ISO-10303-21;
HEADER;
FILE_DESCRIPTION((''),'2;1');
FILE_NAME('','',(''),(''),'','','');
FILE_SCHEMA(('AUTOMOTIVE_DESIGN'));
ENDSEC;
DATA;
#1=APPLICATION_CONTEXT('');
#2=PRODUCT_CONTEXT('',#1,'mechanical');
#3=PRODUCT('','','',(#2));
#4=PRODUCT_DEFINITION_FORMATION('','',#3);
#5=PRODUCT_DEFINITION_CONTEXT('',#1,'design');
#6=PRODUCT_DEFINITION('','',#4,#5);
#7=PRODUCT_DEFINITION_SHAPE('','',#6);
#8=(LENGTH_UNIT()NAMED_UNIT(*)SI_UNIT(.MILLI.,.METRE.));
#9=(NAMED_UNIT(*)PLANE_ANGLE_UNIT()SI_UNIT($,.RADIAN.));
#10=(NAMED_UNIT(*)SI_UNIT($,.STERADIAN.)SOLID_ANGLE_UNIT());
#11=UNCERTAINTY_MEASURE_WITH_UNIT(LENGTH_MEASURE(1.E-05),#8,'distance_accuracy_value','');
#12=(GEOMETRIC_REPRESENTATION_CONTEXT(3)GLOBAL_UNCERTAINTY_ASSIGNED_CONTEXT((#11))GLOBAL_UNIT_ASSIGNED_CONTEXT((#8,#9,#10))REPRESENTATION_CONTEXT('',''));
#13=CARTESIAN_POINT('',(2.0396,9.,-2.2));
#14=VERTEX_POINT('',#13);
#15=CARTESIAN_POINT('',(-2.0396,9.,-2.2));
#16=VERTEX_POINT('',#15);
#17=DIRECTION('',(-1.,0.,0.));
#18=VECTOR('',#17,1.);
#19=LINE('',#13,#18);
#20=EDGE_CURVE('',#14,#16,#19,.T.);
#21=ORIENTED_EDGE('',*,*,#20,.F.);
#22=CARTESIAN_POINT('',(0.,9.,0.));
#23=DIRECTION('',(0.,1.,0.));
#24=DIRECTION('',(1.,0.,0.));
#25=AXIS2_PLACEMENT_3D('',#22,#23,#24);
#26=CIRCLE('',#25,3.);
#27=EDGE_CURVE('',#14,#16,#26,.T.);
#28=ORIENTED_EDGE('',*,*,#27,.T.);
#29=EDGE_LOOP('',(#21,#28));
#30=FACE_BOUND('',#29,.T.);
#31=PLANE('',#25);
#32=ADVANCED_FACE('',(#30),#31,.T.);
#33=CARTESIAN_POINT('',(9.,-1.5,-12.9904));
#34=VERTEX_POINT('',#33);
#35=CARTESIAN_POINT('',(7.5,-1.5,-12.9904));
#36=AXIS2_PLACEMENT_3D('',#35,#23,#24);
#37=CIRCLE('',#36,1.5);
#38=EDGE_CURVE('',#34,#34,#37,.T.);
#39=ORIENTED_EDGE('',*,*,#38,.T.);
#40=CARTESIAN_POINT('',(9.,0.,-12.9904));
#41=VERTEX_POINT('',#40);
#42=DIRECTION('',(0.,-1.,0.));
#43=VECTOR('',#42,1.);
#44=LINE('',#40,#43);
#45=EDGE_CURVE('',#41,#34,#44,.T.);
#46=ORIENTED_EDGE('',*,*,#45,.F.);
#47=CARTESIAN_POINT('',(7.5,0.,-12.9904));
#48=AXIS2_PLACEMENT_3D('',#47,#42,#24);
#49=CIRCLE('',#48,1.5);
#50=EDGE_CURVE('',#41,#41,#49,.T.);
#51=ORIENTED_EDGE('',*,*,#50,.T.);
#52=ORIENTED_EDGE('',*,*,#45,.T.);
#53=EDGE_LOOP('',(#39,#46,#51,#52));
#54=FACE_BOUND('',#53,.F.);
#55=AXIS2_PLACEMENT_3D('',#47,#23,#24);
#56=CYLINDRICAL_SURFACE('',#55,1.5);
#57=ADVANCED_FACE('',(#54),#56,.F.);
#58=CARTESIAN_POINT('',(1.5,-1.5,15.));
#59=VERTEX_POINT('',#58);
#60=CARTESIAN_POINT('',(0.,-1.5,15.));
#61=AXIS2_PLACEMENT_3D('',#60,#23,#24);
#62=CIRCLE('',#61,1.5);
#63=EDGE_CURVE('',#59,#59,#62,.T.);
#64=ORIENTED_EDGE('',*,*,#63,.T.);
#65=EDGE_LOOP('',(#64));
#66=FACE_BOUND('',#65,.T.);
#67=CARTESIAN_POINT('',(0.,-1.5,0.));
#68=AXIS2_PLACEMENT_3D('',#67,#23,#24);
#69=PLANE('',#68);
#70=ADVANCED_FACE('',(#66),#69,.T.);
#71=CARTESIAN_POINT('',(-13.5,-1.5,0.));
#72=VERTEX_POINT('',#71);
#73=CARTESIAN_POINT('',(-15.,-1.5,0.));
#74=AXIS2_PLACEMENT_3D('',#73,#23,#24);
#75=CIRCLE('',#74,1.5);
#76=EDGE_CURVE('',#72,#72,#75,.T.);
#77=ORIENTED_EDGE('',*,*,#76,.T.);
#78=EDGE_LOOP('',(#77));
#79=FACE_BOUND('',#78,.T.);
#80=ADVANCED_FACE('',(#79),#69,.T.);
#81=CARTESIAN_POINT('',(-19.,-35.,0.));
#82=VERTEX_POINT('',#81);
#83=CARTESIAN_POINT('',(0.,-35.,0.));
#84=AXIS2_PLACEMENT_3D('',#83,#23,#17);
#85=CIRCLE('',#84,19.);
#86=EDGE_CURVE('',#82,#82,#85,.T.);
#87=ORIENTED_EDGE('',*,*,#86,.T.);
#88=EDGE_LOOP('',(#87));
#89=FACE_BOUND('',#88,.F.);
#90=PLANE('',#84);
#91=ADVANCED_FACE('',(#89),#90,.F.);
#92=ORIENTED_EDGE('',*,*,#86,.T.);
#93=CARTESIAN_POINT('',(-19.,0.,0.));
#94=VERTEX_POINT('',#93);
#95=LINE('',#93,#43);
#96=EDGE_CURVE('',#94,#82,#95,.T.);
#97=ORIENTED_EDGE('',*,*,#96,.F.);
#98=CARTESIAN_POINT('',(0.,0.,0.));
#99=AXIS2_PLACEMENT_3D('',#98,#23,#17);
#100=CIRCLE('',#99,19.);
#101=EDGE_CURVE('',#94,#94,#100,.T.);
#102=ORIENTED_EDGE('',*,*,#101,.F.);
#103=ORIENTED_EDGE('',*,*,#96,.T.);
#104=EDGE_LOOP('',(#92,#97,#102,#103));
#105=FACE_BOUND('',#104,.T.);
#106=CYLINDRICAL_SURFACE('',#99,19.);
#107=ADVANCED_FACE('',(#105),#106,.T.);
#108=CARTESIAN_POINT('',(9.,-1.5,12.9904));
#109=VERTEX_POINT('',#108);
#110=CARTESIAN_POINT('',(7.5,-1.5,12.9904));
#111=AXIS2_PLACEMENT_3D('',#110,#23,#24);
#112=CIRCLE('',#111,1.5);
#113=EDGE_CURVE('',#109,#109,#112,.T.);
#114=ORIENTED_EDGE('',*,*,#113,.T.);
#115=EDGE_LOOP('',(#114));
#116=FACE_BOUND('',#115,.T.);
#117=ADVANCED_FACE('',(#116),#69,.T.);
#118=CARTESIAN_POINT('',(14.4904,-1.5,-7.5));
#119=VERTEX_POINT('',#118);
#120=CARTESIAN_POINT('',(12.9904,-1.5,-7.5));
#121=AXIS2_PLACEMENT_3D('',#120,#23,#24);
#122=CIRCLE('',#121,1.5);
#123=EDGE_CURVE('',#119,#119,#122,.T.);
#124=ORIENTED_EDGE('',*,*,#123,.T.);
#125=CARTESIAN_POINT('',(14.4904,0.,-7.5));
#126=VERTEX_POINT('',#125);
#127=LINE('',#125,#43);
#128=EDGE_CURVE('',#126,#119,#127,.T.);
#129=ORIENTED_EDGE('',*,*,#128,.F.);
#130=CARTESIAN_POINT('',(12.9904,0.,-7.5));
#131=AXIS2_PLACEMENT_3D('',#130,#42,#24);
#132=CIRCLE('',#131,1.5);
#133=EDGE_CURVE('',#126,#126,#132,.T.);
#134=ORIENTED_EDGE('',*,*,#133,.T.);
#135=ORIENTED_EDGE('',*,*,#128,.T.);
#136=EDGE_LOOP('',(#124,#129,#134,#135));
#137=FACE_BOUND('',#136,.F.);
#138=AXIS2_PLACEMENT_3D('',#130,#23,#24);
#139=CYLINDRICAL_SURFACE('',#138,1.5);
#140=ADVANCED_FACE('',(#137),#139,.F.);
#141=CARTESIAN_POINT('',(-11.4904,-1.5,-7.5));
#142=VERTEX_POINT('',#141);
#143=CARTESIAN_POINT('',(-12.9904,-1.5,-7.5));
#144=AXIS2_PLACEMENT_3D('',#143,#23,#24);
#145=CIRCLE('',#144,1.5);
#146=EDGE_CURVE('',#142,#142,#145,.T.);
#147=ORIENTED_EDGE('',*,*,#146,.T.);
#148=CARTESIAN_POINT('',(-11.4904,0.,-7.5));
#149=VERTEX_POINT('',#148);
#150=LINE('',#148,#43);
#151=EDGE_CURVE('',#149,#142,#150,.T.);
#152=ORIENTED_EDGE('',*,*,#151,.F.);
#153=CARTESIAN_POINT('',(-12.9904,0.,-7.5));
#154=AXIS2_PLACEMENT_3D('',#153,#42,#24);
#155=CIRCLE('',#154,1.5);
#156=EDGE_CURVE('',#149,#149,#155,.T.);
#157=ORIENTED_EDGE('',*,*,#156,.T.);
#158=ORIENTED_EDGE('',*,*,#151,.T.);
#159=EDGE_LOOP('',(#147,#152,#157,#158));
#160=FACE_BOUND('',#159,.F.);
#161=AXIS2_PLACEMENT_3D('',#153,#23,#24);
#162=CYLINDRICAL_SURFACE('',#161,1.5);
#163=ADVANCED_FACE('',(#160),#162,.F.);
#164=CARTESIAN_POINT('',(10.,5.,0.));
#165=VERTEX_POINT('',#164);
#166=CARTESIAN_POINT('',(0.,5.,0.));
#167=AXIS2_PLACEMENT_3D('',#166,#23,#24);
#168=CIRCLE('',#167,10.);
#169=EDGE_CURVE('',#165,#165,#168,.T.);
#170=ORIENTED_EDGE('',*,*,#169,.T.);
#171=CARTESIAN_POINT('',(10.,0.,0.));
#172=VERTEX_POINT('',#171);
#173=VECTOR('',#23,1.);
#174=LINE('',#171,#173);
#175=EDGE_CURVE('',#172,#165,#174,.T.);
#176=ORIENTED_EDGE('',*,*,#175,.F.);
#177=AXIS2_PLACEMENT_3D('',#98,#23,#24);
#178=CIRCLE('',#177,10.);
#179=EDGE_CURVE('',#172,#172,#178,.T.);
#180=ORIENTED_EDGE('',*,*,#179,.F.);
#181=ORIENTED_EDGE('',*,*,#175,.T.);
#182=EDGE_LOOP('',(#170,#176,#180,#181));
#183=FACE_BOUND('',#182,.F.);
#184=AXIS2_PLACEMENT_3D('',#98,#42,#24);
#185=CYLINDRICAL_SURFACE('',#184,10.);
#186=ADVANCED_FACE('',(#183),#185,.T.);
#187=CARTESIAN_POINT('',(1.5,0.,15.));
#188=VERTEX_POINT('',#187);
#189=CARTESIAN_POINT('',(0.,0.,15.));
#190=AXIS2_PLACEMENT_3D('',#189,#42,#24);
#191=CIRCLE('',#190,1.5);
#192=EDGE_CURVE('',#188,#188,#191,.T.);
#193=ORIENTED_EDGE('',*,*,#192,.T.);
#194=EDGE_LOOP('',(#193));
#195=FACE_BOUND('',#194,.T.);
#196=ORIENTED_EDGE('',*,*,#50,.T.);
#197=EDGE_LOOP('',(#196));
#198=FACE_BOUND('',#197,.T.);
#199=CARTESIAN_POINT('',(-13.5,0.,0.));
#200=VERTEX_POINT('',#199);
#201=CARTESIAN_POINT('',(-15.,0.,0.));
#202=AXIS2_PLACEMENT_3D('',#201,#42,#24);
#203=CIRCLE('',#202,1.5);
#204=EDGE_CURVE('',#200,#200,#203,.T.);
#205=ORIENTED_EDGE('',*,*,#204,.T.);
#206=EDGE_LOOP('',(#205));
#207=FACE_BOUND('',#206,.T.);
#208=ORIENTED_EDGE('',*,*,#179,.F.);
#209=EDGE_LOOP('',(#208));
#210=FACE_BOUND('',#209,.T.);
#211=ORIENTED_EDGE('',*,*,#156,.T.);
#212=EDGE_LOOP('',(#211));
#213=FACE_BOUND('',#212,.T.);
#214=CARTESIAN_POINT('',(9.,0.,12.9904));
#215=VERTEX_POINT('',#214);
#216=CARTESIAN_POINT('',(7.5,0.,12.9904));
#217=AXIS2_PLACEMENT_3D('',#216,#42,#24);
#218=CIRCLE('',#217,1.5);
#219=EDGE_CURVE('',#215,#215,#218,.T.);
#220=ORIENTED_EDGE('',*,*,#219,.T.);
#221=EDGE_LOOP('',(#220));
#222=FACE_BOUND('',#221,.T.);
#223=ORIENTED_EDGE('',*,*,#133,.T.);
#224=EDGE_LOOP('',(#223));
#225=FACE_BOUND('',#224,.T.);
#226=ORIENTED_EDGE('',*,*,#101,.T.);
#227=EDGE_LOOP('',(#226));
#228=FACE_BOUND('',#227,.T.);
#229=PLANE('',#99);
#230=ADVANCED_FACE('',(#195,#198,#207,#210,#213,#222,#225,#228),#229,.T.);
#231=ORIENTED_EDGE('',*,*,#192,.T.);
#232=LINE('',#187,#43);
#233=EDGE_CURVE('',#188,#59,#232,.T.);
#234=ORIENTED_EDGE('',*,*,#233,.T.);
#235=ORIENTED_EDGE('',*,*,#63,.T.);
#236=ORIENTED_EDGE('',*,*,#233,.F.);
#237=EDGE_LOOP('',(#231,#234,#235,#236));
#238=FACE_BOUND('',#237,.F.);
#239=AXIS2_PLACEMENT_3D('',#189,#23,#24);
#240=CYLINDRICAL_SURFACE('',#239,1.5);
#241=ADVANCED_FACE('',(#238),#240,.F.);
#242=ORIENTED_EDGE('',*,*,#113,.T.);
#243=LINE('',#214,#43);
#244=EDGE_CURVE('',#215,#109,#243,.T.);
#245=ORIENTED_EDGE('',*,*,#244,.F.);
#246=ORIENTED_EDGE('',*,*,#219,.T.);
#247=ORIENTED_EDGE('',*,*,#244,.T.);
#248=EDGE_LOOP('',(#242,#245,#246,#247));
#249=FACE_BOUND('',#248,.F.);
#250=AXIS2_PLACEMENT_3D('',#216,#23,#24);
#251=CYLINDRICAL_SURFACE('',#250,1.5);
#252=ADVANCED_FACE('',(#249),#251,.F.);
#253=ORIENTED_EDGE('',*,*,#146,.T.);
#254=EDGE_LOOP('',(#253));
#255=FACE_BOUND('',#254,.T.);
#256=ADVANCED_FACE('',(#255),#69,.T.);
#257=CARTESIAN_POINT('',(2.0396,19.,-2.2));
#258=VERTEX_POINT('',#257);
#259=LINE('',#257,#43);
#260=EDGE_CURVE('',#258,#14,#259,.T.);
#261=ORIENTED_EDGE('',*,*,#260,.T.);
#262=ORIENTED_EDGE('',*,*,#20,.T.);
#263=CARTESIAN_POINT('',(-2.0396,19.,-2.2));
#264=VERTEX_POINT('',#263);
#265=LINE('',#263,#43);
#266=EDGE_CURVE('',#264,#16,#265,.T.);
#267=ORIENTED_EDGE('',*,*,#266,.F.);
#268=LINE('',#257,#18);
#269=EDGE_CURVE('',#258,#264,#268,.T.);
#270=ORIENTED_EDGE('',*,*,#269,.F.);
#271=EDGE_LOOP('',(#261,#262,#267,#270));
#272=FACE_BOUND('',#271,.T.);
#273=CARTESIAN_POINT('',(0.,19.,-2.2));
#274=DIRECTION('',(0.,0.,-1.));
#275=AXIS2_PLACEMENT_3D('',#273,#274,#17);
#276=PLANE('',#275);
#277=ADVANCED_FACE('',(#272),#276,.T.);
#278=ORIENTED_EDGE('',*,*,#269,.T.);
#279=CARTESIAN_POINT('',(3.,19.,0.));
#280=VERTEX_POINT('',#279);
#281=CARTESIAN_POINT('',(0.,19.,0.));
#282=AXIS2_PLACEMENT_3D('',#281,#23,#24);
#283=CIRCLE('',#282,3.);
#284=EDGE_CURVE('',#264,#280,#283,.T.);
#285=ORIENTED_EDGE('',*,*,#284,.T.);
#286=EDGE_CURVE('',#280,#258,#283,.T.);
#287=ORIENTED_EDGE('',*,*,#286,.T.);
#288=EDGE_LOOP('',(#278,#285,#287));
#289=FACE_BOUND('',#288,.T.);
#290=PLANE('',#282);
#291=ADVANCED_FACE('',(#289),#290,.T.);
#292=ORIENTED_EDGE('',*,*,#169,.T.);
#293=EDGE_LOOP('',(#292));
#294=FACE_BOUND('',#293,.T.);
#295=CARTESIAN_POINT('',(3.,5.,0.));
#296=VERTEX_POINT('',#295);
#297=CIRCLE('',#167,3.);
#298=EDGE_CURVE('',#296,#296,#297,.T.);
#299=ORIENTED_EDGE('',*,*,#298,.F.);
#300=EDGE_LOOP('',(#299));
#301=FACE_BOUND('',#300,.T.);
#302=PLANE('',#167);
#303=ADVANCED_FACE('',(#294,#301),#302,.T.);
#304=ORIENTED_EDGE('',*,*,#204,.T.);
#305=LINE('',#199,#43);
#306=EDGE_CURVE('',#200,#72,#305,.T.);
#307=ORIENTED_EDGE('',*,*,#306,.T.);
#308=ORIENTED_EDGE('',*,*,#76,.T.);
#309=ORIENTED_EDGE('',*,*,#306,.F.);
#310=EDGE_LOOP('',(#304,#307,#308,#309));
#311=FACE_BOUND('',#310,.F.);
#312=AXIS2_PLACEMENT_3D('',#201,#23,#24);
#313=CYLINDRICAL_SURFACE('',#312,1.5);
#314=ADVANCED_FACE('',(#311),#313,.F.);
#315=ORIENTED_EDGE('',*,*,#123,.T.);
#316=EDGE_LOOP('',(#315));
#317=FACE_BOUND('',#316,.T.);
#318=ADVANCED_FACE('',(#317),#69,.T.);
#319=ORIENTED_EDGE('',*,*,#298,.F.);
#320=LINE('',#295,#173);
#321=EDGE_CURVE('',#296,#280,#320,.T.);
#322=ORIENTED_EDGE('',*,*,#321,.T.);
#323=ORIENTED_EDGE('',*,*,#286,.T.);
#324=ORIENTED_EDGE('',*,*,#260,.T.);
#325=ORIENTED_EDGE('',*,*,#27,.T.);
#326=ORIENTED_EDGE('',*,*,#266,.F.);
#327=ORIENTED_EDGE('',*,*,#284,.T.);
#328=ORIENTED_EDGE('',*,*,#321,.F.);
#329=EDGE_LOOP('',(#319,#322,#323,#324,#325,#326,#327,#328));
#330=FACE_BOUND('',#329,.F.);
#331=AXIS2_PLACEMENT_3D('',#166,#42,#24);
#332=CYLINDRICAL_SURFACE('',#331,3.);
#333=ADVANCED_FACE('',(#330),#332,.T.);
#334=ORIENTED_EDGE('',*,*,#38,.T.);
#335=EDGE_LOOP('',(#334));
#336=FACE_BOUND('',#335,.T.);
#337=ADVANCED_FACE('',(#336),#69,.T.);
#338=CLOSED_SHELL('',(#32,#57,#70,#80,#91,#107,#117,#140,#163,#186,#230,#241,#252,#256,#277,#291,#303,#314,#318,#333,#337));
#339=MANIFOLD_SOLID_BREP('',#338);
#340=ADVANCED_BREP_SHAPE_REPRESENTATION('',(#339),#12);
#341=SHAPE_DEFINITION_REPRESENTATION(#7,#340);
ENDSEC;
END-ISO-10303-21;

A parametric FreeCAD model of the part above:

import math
import FreeCAD as App
import Part
import Sketcher

doc = App.newDocument("Part")
params = doc.addObject("Spreadsheet::Sheet", "Params")
for row, (alias, value) in enumerate([
    ("sketch1_diameter", "38 mm"),
    ("pad1_length", "35 mm"),
    ("sketch2_diameter", "3 mm"),
    ("pocket1_length", "1.5 mm"),
    ("sketch3_diameter", "20 mm"),
    ("pad2_length", "5 mm"),
    ("sketch4_diameter", "6 mm"),
    ("pad3_length", "14 mm"),
    ("sketch5_radius", "3 mm"),
    ("pocket2_length", "10 mm"),
], start=1):
    params.set(f"A{row}", alias)
    params.set(f"B{row}", "=" + value)
    params.setAlias(f"B{row}", alias)

body = doc.addObject("PartDesign::Body", "Body")

# Sketch on XZ plane
sketch1 = body.newObject("Sketcher::SketchObject", "Sketch")
sketch1.AttachmentSupport = (doc.getObject("XZ_Plane"), [""])
sketch1.MapMode = "FlatFace"
sketch1.addGeometry(Part.Circle(App.Vector(0, 0, 0), App.Vector(0, 0, 1), 19), False)
sketch1.addConstraint([
    Sketcher.Constraint("Coincident", 0, 3, -1, 1),
    Sketcher.Constraint("Diameter", 0, 38.0),
])
sketch1.setExpression("Constraints[1]", "Params.sketch1_diameter")
pad1 = body.newObject("PartDesign::Pad", "Pad")
pad1.Profile = sketch1
pad1.setExpression("Length", "Params.pad1_length")

# Sketch on XZ plane
sketch2 = body.newObject("Sketcher::SketchObject", "Sketch001")
sketch2.AttachmentSupport = (doc.getObject("XZ_Plane"), [""])
sketch2.MapMode = "FlatFace"
sketch2.addGeometry([
    Part.Circle(App.Vector(-13, -7.5, 0), App.Vector(0, 0, 1), 1.5),  # 0
    Part.Circle(App.Vector(-15, 0, 0), App.Vector(0, 0, 1), 1.5),  # 1
    Part.Circle(App.Vector(7.5, -13, 0), App.Vector(0, 0, 1), 1.5),  # 2
    Part.Circle(App.Vector(0, 15, 0), App.Vector(0, 0, 1), 1.5),  # 3
    Part.Circle(App.Vector(13, -7.5, 0), App.Vector(0, 0, 1), 1.5),  # 4
    Part.Circle(App.Vector(7.5, 13, 0), App.Vector(0, 0, 1), 1.5),  # 5
], False)
sketch2.addConstraint([
    Sketcher.Constraint("Equal", 0, 1),
    Sketcher.Constraint("Equal", 1, 2),
    Sketcher.Constraint("Equal", 2, 3),
    Sketcher.Constraint("Equal", 3, 4),
    Sketcher.Constraint("Equal", 4, 5),
    Sketcher.Constraint("Symmetric", 0, 3, 4, 3, -2),
    Sketcher.Constraint("Symmetric", 2, 3, 5, 3, -1),
    Sketcher.Constraint("PointOnObject", 1, 3, -1),
    Sketcher.Constraint("PointOnObject", 3, 3, -2),
    Sketcher.Constraint("Diameter", 0, 3.0),
    Sketcher.Constraint("DistanceX", 1, 3, -1, 1, 15.0),
    Sketcher.Constraint("DistanceY", -1, 1, 3, 3, 15.0),
    Sketcher.Constraint("DistanceY", 0, 3, -1, 1, 7.5),
    Sketcher.Constraint("DistanceX", -1, 1, 2, 3, 7.5),
    Sketcher.Constraint("DistanceX", 0, 3, -1, 1, 12.9904),
    Sketcher.Constraint("DistanceY", 2, 3, -1, 1, 12.9904),
])
sketch2.setExpression("Constraints[9]", "Params.sketch2_diameter")
pocket1 = body.newObject("PartDesign::Pocket", "Pocket")
pocket1.Profile = sketch2
pocket1.setExpression("Length", "Params.pocket1_length")
pocket1.Reversed = True

# Sketch on XZ plane
sketch3 = body.newObject("Sketcher::SketchObject", "Sketch002")
sketch3.AttachmentSupport = (doc.getObject("XZ_Plane"), [""])
sketch3.MapMode = "FlatFace"
sketch3.addGeometry(Part.Circle(App.Vector(0, 0, 0), App.Vector(0, 0, 1), 10), False)
sketch3.addConstraint([
    Sketcher.Constraint("Coincident", 0, 3, -1, 1),
    Sketcher.Constraint("Diameter", 0, 20.0),
])
sketch3.setExpression("Constraints[1]", "Params.sketch3_diameter")
pad2 = body.newObject("PartDesign::Pad", "Pad001")
pad2.Profile = sketch3
pad2.setExpression("Length", "Params.pad2_length")
pad2.Reversed = True

# Sketch on XZ plane
sketch4 = body.newObject("Sketcher::SketchObject", "Sketch003")
sketch4.AttachmentSupport = (doc.getObject("XZ_Plane"), [""])
sketch4.MapMode = "FlatFace"
sketch4.AttachmentOffset = App.Placement(App.Vector(0, 0, -5), App.Rotation())
sketch4.addGeometry(Part.Circle(App.Vector(0, 0, 0), App.Vector(0, 0, 1), 3), False)
sketch4.addConstraint([
    Sketcher.Constraint("Coincident", 0, 3, -1, 1),
    Sketcher.Constraint("Diameter", 0, 6.0),
])
sketch4.setExpression("Constraints[1]", "Params.sketch4_diameter")
pad3 = body.newObject("PartDesign::Pad", "Pad002")
pad3.Profile = sketch4
pad3.setExpression("Length", "Params.pad3_length")
pad3.Reversed = True

# Sketch on XZ plane
sketch5 = body.newObject("Sketcher::SketchObject", "Sketch004")
sketch5.AttachmentSupport = (doc.getObject("XZ_Plane"), [""])
sketch5.MapMode = "FlatFace"
sketch5.AttachmentOffset = App.Placement(App.Vector(0, 0, -19), App.Rotation())
sketch5.addGeometry([
    Part.LineSegment(App.Vector(-2, -2.2, 0), App.Vector(2, -2.2, 0)),
    Part.ArcOfCircle(Part.Circle(App.Vector(0, 0, 0), App.Vector(0, 0, 1), 3), math.radians(-133), math.radians(-47)),
], False)
sketch5.addConstraint([
    Sketcher.Constraint("Coincident", 0, 1, 1, 1),
    Sketcher.Constraint("Coincident", 1, 2, 0, 2),
    Sketcher.Constraint("Horizontal", 0),
    Sketcher.Constraint("Coincident", 1, 3, -1, 1),
    Sketcher.Constraint("Radius", 1, 3.0),
    Sketcher.Constraint("DistanceY", 0, 1, -1, 1, 2.2),
])
sketch5.setExpression("Constraints[4]", "Params.sketch5_radius")
pocket2 = body.newObject("PartDesign::Pocket", "Pocket001")
pocket2.Profile = sketch5
pocket2.setExpression("Length", "Params.pocket2_length")
pocket2.Reversed = True

doc.recompute()
